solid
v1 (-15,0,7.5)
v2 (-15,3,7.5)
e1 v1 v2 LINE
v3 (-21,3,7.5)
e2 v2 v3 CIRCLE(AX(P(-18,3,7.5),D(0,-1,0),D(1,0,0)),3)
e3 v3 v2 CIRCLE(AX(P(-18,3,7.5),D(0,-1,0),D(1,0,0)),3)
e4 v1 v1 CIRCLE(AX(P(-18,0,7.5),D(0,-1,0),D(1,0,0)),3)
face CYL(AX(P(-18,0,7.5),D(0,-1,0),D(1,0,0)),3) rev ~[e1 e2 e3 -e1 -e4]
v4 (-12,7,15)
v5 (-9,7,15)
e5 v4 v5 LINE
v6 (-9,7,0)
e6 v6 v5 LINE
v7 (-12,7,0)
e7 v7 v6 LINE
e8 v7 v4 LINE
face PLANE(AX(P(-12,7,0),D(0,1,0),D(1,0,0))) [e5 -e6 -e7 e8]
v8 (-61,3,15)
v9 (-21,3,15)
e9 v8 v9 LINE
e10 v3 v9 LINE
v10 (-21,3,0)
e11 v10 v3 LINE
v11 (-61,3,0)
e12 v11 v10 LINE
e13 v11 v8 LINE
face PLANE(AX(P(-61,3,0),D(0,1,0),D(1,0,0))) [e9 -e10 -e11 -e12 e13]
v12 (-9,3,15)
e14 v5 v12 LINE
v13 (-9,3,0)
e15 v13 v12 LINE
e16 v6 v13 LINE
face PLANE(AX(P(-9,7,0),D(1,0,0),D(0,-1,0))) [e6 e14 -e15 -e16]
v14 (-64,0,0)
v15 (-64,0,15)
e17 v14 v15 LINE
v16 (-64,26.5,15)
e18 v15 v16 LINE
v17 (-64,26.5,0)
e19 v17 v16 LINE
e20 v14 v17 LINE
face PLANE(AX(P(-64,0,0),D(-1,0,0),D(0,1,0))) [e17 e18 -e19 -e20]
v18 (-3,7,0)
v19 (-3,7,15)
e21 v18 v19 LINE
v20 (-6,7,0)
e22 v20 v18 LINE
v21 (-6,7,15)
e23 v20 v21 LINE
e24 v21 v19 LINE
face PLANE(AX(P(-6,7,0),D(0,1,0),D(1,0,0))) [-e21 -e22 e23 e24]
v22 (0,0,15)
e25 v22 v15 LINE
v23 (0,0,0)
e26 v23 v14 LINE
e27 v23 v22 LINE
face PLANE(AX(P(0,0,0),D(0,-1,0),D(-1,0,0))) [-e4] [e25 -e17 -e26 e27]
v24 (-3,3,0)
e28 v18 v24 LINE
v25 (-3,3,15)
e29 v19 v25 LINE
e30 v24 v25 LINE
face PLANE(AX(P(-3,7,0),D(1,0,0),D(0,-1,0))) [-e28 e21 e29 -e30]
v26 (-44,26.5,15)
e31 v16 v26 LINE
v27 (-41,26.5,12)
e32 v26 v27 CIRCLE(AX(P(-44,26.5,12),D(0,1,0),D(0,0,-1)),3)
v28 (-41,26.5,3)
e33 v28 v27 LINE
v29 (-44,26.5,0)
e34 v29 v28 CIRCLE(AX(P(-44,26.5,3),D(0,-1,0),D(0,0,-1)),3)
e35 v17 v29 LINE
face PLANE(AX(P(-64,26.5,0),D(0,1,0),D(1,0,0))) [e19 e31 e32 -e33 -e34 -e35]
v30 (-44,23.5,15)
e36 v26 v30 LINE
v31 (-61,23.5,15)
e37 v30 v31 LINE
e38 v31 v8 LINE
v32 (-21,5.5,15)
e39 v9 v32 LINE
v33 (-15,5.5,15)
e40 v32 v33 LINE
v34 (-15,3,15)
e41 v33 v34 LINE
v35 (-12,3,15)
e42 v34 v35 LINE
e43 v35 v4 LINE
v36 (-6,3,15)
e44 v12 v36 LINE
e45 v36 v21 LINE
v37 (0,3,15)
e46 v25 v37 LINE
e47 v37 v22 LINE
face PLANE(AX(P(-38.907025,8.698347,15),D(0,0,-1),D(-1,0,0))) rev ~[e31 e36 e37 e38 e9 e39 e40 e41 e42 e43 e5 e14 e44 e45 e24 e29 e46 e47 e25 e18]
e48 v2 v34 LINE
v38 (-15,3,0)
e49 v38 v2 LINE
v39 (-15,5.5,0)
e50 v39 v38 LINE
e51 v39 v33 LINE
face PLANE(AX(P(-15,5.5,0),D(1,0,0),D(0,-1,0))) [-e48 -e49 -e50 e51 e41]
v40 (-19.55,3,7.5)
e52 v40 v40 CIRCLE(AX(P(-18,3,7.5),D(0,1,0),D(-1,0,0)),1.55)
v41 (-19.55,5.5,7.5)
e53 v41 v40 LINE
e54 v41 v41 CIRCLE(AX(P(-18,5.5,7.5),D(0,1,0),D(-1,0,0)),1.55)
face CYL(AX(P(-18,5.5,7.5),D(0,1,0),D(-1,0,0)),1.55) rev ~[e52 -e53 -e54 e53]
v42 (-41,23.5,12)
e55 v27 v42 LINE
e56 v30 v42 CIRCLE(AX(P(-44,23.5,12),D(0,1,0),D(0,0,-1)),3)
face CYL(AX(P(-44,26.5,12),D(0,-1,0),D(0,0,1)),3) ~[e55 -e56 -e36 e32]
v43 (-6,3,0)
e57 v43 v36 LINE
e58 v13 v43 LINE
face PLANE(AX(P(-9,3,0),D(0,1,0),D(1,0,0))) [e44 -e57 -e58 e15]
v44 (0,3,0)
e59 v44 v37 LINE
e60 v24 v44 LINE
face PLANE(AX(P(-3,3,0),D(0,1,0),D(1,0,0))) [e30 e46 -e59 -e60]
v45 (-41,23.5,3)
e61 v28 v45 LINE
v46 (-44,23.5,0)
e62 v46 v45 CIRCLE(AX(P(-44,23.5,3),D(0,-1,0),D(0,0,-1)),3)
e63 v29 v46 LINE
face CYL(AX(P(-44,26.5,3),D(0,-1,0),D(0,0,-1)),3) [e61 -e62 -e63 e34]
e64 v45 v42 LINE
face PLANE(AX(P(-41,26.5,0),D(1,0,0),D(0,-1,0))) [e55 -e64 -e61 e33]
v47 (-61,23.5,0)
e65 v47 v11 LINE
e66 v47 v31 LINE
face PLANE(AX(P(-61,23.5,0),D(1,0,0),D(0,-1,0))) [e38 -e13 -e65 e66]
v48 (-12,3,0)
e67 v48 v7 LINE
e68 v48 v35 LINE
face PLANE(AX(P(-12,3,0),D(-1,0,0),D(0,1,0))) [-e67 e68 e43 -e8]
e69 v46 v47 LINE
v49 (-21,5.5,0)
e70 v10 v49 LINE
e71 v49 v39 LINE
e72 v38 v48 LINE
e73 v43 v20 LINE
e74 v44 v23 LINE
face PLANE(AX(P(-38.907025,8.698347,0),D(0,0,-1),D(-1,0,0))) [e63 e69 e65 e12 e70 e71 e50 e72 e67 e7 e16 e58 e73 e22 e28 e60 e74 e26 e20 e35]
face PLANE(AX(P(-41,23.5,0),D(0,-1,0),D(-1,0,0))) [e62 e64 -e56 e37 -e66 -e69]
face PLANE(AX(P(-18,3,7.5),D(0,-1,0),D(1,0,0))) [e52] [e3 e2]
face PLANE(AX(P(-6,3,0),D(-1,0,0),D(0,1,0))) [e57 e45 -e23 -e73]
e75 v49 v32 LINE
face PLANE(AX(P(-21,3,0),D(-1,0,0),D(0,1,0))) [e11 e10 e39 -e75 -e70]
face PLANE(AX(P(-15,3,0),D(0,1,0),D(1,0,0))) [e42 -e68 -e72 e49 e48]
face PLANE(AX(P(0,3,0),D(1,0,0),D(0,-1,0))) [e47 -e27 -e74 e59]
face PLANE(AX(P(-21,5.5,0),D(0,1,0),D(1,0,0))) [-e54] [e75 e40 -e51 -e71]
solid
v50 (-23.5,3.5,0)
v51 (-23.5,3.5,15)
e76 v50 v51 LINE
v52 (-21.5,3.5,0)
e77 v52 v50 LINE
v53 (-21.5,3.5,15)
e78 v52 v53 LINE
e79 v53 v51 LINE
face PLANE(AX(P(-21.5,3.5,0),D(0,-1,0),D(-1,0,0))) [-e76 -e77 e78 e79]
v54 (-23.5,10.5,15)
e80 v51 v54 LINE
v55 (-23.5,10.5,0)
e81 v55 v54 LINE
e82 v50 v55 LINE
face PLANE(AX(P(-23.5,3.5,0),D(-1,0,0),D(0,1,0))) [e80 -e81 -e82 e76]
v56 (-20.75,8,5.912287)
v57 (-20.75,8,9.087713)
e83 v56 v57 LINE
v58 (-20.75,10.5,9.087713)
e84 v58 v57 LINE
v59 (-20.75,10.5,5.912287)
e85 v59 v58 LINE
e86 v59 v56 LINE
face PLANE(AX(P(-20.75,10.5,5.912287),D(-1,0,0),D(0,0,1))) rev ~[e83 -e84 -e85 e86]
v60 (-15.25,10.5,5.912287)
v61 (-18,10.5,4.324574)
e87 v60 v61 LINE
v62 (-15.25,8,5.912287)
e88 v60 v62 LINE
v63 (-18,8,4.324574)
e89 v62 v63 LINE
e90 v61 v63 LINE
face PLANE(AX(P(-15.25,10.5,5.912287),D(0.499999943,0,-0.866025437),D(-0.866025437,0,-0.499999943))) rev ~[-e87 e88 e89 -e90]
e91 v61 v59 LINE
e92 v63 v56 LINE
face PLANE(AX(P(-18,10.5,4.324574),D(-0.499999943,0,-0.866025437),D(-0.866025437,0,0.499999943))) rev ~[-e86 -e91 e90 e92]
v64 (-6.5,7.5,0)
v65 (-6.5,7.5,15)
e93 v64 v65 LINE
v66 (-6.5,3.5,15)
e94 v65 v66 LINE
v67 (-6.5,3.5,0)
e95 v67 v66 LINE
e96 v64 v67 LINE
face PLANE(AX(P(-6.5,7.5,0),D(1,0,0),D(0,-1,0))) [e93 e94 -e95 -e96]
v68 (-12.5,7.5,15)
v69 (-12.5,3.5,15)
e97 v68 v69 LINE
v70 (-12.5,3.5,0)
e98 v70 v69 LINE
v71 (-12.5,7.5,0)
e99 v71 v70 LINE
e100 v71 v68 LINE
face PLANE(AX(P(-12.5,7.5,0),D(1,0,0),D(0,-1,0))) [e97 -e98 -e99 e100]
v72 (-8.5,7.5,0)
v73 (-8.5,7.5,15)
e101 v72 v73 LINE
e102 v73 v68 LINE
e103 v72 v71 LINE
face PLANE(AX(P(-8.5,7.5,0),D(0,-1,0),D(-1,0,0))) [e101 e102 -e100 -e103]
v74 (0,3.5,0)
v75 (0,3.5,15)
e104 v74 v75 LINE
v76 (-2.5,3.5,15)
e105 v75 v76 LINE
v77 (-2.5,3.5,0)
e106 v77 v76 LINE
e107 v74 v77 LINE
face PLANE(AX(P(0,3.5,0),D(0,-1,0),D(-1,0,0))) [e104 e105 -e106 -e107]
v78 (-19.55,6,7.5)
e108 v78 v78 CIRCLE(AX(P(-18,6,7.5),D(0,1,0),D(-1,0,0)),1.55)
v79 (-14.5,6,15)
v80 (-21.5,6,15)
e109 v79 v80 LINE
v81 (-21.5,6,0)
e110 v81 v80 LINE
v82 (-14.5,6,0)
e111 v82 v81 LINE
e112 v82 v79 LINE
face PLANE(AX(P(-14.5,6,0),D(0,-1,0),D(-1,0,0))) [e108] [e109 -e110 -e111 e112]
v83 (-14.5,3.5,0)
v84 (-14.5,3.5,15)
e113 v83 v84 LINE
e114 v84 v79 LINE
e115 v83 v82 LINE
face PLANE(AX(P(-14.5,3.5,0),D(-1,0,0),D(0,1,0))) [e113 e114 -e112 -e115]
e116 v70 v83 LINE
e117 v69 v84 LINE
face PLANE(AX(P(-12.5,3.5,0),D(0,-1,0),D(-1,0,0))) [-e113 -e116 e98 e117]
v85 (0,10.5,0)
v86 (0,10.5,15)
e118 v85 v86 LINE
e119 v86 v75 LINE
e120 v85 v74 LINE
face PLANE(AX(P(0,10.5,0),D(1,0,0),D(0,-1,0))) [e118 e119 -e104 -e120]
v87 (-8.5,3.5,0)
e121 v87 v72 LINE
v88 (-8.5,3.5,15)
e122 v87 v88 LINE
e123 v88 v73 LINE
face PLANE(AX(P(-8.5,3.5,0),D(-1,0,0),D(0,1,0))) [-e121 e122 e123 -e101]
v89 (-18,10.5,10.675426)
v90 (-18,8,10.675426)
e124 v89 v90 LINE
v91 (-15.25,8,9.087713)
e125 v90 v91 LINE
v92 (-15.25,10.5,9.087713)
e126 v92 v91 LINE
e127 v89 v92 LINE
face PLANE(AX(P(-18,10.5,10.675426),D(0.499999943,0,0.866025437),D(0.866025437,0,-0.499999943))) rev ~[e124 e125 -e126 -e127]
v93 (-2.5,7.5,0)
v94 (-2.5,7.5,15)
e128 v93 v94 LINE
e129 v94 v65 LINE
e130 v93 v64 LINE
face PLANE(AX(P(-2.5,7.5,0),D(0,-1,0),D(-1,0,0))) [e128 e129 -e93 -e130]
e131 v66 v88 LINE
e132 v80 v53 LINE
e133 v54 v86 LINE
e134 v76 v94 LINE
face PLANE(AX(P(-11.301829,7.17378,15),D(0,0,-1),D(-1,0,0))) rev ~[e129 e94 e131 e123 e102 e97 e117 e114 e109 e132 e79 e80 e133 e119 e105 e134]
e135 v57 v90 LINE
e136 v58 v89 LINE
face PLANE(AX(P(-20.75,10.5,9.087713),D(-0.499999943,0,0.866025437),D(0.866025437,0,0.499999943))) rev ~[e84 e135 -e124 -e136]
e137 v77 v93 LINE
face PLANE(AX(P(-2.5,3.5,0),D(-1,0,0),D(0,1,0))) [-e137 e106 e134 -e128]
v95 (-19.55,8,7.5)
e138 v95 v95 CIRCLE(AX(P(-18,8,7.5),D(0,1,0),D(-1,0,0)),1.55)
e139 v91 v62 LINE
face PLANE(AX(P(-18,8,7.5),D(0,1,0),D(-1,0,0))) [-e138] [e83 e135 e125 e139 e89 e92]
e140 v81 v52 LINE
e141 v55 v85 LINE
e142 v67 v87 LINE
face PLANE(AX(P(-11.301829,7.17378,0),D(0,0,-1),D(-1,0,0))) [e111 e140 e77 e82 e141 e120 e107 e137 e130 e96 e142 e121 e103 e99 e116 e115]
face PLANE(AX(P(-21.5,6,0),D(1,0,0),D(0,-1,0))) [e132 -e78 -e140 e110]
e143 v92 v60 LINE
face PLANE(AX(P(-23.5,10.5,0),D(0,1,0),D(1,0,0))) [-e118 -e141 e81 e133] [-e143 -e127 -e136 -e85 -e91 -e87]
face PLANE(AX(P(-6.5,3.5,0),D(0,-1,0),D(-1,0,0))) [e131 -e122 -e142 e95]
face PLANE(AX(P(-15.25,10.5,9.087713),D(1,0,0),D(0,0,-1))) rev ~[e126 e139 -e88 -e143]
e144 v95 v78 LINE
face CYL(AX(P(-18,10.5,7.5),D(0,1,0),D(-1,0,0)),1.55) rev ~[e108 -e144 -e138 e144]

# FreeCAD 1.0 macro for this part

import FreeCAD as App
import Part
import Sketcher

V = App.Vector
Q = App.Units.Quantity


def edges_at(feature, points):
    """Names of the edges that pass closest to the given points."""
    edges = feature.Shape.Edges
    near = lambda p: min(range(len(edges)), key=lambda i: edges[i].distToShape(Part.Vertex(*p))[0])
    return sorted({f"Edge{near(p) + 1}" for p in points})

doc = App.newDocument("Part")
body = doc.addObject("PartDesign::Body", "Body")

sketch1 = doc.addObject("Sketcher::SketchObject", "Sketch")
body.addObject(sketch1)
sketch1.AttachmentSupport = (doc.XY_Plane, [""])
sketch1.MapMode = "FlatFace"
sketch1.addGeometry([
    Part.LineSegment(V(-64, 0, 0), V(0, 0, 0)),
    Part.LineSegment(V(0, 0, 0), V(0, 3, 0)),
    Part.LineSegment(V(0, 3, 0), V(-3, 3, 0)),
    Part.LineSegment(V(-3, 3, 0), V(-3, 7, 0)),
    Part.LineSegment(V(-3, 7, 0), V(-6, 7, 0)),
    Part.LineSegment(V(-6, 7, 0), V(-6, 3, 0)),
    Part.LineSegment(V(-6, 3, 0), V(-9, 3, 0)),
    Part.LineSegment(V(-9, 3, 0), V(-9, 7, 0)),
    Part.LineSegment(V(-9, 7, 0), V(-12, 7, 0)),
    Part.LineSegment(V(-12, 7, 0), V(-12, 3, 0)),
    Part.LineSegment(V(-12, 3, 0), V(-15, 3, 0)),
    Part.LineSegment(V(-15, 3, 0), V(-15, 5.5, 0)),
    Part.LineSegment(V(-15, 5.5, 0), V(-21, 5.5, 0)),
    Part.LineSegment(V(-21, 5.5, 0), V(-21, 3, 0)),
    Part.LineSegment(V(-21, 3, 0), V(-61, 3, 0)),
    Part.LineSegment(V(-61, 3, 0), V(-61, 23.5, 0)),
    Part.LineSegment(V(-61, 23.5, 0), V(-41, 23.5, 0)),
    Part.LineSegment(V(-41, 23.5, 0), V(-41, 26.5, 0)),
    Part.LineSegment(V(-41, 26.5, 0), V(-64, 26.5, 0)),
    Part.LineSegment(V(-64, 26.5, 0), V(-64, 0, 0)),
], False)
sketch1.addConstraint([
    Sketcher.Constraint("Coincident", 0, 2, 1, 1),
    Sketcher.Constraint("Coincident", 1, 2, 2, 1),
    Sketcher.Constraint("Coincident", 2, 2, 3, 1),
    Sketcher.Constraint("Coincident", 3, 2, 4, 1),
    Sketcher.Constraint("Coincident", 4, 2, 5, 1),
    Sketcher.Constraint("Coincident", 5, 2, 6, 1),
    Sketcher.Constraint("Coincident", 6, 2, 7, 1),
    Sketcher.Constraint("Coincident", 7, 2, 8, 1),
    Sketcher.Constraint("Coincident", 8, 2, 9, 1),
    Sketcher.Constraint("Coincident", 9, 2, 10, 1),
    Sketcher.Constraint("Coincident", 10, 2, 11, 1),
    Sketcher.Constraint("Coincident", 11, 2, 12, 1),
    Sketcher.Constraint("Coincident", 12, 2, 13, 1),
    Sketcher.Constraint("Coincident", 13, 2, 14, 1),
    Sketcher.Constraint("Coincident", 14, 2, 15, 1),
    Sketcher.Constraint("Coincident", 15, 2, 16, 1),
    Sketcher.Constraint("Coincident", 16, 2, 17, 1),
    Sketcher.Constraint("Coincident", 17, 2, 18, 1),
    Sketcher.Constraint("Coincident", 18, 2, 19, 1),
    Sketcher.Constraint("Coincident", 19, 2, 0, 1),
    Sketcher.Constraint("Horizontal", 0),
    Sketcher.Constraint("Vertical", 1),
    Sketcher.Constraint("Horizontal", 2),
    Sketcher.Constraint("Vertical", 3),
    Sketcher.Constraint("Horizontal", 4),
    Sketcher.Constraint("Vertical", 5),
    Sketcher.Constraint("Horizontal", 6),
    Sketcher.Constraint("Vertical", 7),
    Sketcher.Constraint("Horizontal", 8),
    Sketcher.Constraint("Vertical", 9),
    Sketcher.Constraint("Horizontal", 10),
    Sketcher.Constraint("Vertical", 11),
    Sketcher.Constraint("Horizontal", 12),
    Sketcher.Constraint("Vertical", 13),
    Sketcher.Constraint("Horizontal", 14),
    Sketcher.Constraint("Vertical", 15),
    Sketcher.Constraint("Horizontal", 16),
    Sketcher.Constraint("Vertical", 17),
    Sketcher.Constraint("Horizontal", 18),
    Sketcher.Constraint("Vertical", 19),
    Sketcher.Constraint("Coincident", 0, 2, -1, 1),
    Sketcher.Constraint("Horizontal", 2, 2, 5, 2),
    Sketcher.Constraint("Horizontal", 4, 2, 7, 2),
    Sketcher.Constraint("Horizontal", 6, 2, 9, 2),
    Sketcher.Constraint("Horizontal", 10, 2, 13, 2),
    Sketcher.Constraint("Equal", 2, 4),
    Sketcher.Constraint("Equal", 4, 6),
    Sketcher.Constraint("Equal", 6, 8),
    Sketcher.Constraint("Equal", 8, 10),
    Sketcher.Constraint("Equal", 10, 1),
    Sketcher.Constraint("Equal", 1, 17),
    Sketcher.Constraint("DistanceX", 0, 1, 0, 2, 64.0),
    Sketcher.Constraint("DistanceX", 2, 2, 2, 1, 3.0),
    Sketcher.Constraint("DistanceX", 12, 2, 12, 1, 6.0),
    Sketcher.Constraint("DistanceX", 14, 2, 14, 1, 40.0),
    Sketcher.Constraint("DistanceX", 16, 1, 16, 2, 20.0),
    Sketcher.Constraint("DistanceY", 3, 1, 3, 2, 4.0),
    Sketcher.Constraint("DistanceY", 11, 1, 11, 2, 2.5),
    Sketcher.Constraint("DistanceY", 15, 1, 15, 2, 20.5),
])
pad1 = doc.addObject("PartDesign::Pad", "Pad")
body.addObject(pad1)
pad1.Profile = sketch1
pad1.Length = 15

sketch2 = doc.addObject("Sketcher::SketchObject", "Sketch001")
body.addObject(sketch2)
sketch2.AttachmentSupport = (doc.XZ_Plane, [""])
sketch2.MapMode = "FlatFace"
sketch2.AttachmentOffset = App.Placement(V(0, 0, -5.5), App.Rotation())
sketch2.addGeometry(Part.Circle(V(-18, 7.5, 0), V(0, 0, 1), 1.6), False)
sketch2.addConstraint([
    Sketcher.Constraint("Diameter", 0, 3.1),
    Sketcher.Constraint("DistanceX", 0, 3, -1, 1, 18.0),
    Sketcher.Constraint("DistanceY", -1, 1, 0, 3, 7.5),
])
pocket1 = doc.addObject("PartDesign::Pocket", "Pocket")
body.addObject(pocket1)
pocket1.Profile = sketch2
pocket1.Type = "ThroughAll"
pocket1.Reversed = True

sketch3 = doc.addObject("Sketcher::SketchObject", "Sketch002")
body.addObject(sketch3)
sketch3.AttachmentSupport = (doc.XZ_Plane, [""])
sketch3.MapMode = "FlatFace"
sketch3.addGeometry(Part.Circle(V(-18, 7.5, 0), V(0, 0, 1), 3), False)
sketch3.addConstraint([
    Sketcher.Constraint("Diameter", 0, 6.0),
    Sketcher.Constraint("DistanceX", 0, 3, -1, 1, 18.0),
    Sketcher.Constraint("DistanceY", -1, 1, 0, 3, 7.5),
])
pocket2 = doc.addObject("PartDesign::Pocket", "Pocket001")
body.addObject(pocket2)
pocket2.Profile = sketch3
pocket2.Length = 3
doc.recompute()

fillet = doc.addObject("PartDesign::Fillet", "Fillet")
body.addObject(fillet)
fillet.Base = (pocket2, edges_at(pocket2, [(-41, 25, 0), (-41, 25, 15)]))
fillet.Radius = 3
body2 = doc.addObject("PartDesign::Body", "Body001")

sketch4 = doc.addObject("Sketcher::SketchObject", "Sketch003")
body2.addObject(sketch4)
sketch4.AttachmentSupport = (doc.getObject("XY_Plane001"), [""])
sketch4.MapMode = "FlatFace"
sketch4.addGeometry([
    Part.LineSegment(V(-2.5, 3.5, 0), V(0, 3.5, 0)),
    Part.LineSegment(V(0, 3.5, 0), V(0, 10.5, 0)),
    Part.LineSegment(V(0, 10.5, 0), V(-23.5, 10.5, 0)),
    Part.LineSegment(V(-23.5, 10.5, 0), V(-23.5, 3.5, 0)),
    Part.LineSegment(V(-23.5, 3.5, 0), V(-21.5, 3.5, 0)),
    Part.LineSegment(V(-21.5, 3.5, 0), V(-21.5, 6, 0)),
    Part.LineSegment(V(-21.5, 6, 0), V(-14.5, 6, 0)),
    Part.LineSegment(V(-14.5, 6, 0), V(-14.5, 3.5, 0)),
    Part.LineSegment(V(-14.5, 3.5, 0), V(-12.5, 3.5, 0)),
    Part.LineSegment(V(-12.5, 3.5, 0), V(-12.5, 7.5, 0)),
    Part.LineSegment(V(-12.5, 7.5, 0), V(-8.5, 7.5, 0)),
    Part.LineSegment(V(-8.5, 7.5, 0), V(-8.5, 3.5, 0)),
    Part.LineSegment(V(-8.5, 3.5, 0), V(-6.5, 3.5, 0)),
    Part.LineSegment(V(-6.5, 3.5, 0), V(-6.5, 7.5, 0)),
    Part.LineSegment(V(-6.5, 7.5, 0), V(-2.5, 7.5, 0)),
    Part.LineSegment(V(-2.5, 7.5, 0), V(-2.5, 3.5, 0)),
], False)
sketch4.addConstraint([
    Sketcher.Constraint("Coincident", 0, 2, 1, 1),
    Sketcher.Constraint("Coincident", 1, 2, 2, 1),
    Sketcher.Constraint("Coincident", 2, 2, 3, 1),
    Sketcher.Constraint("Coincident", 3, 2, 4, 1),
    Sketcher.Constraint("Coincident", 4, 2, 5, 1),
    Sketcher.Constraint("Coincident", 5, 2, 6, 1),
    Sketcher.Constraint("Coincident", 6, 2, 7, 1),
    Sketcher.Constraint("Coincident", 7, 2, 8, 1),
    Sketcher.Constraint("Coincident", 8, 2, 9, 1),
    Sketcher.Constraint("Coincident", 9, 2, 10, 1),
    Sketcher.Constraint("Coincident", 10, 2, 11, 1),
    Sketcher.Constraint("Coincident", 11, 2, 12, 1),
    Sketcher.Constraint("Coincident", 12, 2, 13, 1),
    Sketcher.Constraint("Coincident", 13, 2, 14, 1),
    Sketcher.Constraint("Coincident", 14, 2, 15, 1),
    Sketcher.Constraint("Coincident", 15, 2, 0, 1),
    Sketcher.Constraint("Horizontal", 0),
    Sketcher.Constraint("Vertical", 1),
    Sketcher.Constraint("Horizontal", 2),
    Sketcher.Constraint("Vertical", 3),
    Sketcher.Constraint("Horizontal", 4),
    Sketcher.Constraint("Vertical", 5),
    Sketcher.Constraint("Horizontal", 6),
    Sketcher.Constraint("Vertical", 7),
    Sketcher.Constraint("Horizontal", 8),
    Sketcher.Constraint("Vertical", 9),
    Sketcher.Constraint("Horizontal", 10),
    Sketcher.Constraint("Vertical", 11),
    Sketcher.Constraint("Horizontal", 12),
    Sketcher.Constraint("Vertical", 13),
    Sketcher.Constraint("Horizontal", 14),
    Sketcher.Constraint("Vertical", 15),
    Sketcher.Constraint("PointOnObject", 0, 2, -2),
    Sketcher.Constraint("Horizontal", 0, 2, 3, 2),
    Sketcher.Constraint("Horizontal", 4, 2, 7, 2),
    Sketcher.Constraint("Horizontal", 8, 2, 11, 2),
    Sketcher.Constraint("Horizontal", 10, 2, 13, 2),
    Sketcher.Constraint("Equal", 4, 8),
    Sketcher.Constraint("Equal", 8, 12),
    Sketcher.Constraint("Equal", 10, 14),
    Sketcher.Constraint("Equal", 6, 1),
    Sketcher.Constraint("Equal", 0, 5),
    Sketcher.Constraint("Equal", 14, 9),
    Sketcher.Constraint("DistanceX", 4, 1, 4, 2, 2.0),
    Sketcher.Constraint("DistanceX", 6, 1, 6, 2, 7.0),
    Sketcher.Constraint("DistanceX", 10, 1, 10, 2, 4.0),
    Sketcher.Constraint("DistanceX", 0, 1, 0, 2, 2.5),
    Sketcher.Constraint("DistanceY", -1, 1, 5, 2, 6.0),
])
pad2 = doc.addObject("PartDesign::Pad", "Pad001")
body2.addObject(pad2)
pad2.Profile = sketch4
pad2.Length = 15

sketch5 = doc.addObject("Sketcher::SketchObject", "Sketch004")
body2.addObject(sketch5)
sketch5.AttachmentSupport = (doc.getObject("XZ_Plane001"), [""])
sketch5.MapMode = "FlatFace"
sketch5.AttachmentOffset = App.Placement(V(0, 0, -10.5), App.Rotation())
sketch5.addGeometry(Part.Circle(V(-18, 7.5, 0), V(0, 0, 1), 1.6), False)
sketch5.addConstraint([
    Sketcher.Constraint("Diameter", 0, 3.1),
    Sketcher.Constraint("DistanceX", 0, 3, -1, 1, 18.0),
    Sketcher.Constraint("DistanceY", -1, 1, 0, 3, 7.5),
])
pocket3 = doc.addObject("PartDesign::Pocket", "Pocket002")
body2.addObject(pocket3)
pocket3.Profile = sketch5
pocket3.Length = 5
pocket3.Reversed = True

sketch6 = doc.addObject("Sketcher::SketchObject", "Sketch005")
body2.addObject(sketch6)
sketch6.AttachmentSupport = (doc.getObject("XZ_Plane001"), [""])
sketch6.MapMode = "FlatFace"
sketch6.AttachmentOffset = App.Placement(V(0, 0, -10.5), App.Rotation())
sketch6.addGeometry([
    Part.LineSegment(V(-20.8, 5.9, 0), V(-20.8, 9.1, 0)),
    Part.LineSegment(V(-20.8, 9.1, 0), V(-18, 10.7, 0)),
    Part.LineSegment(V(-18, 10.7, 0), V(-15.2, 9.1, 0)),
    Part.LineSegment(V(-15.2, 9.1, 0), V(-15.2, 5.9, 0)),
    Part.LineSegment(V(-15.2, 5.9, 0), V(-18, 4.3, 0)),
    Part.LineSegment(V(-18, 4.3, 0), V(-20.8, 5.9, 0)),
], False)
sketch6.addConstraint([
    Sketcher.Constraint("Coincident", 0, 2, 1, 1),
    Sketcher.Constraint("Coincident", 1, 2, 2, 1),
    Sketcher.Constraint("Coincident", 2, 2, 3, 1),
    Sketcher.Constraint("Coincident", 3, 2, 4, 1),
    Sketcher.Constraint("Coincident", 4, 2, 5, 1),
    Sketcher.Constraint("Coincident", 5, 2, 0, 1),
    Sketcher.Constraint("Vertical", 0),
    Sketcher.Constraint("Vertical", 3),
    Sketcher.Constraint("Parallel", 1, 4),
    Sketcher.Constraint("Parallel", 2, 5),
    Sketcher.Constraint("Horizontal", 0, 2, 2, 2),
    Sketcher.Constraint("Horizontal", 3, 2, 5, 2),
    Sketcher.Constraint("Vertical", 1, 2, 4, 2),
    Sketcher.Constraint("Angle", 1, Q("29.999996 deg")),
    Sketcher.Constraint("DistanceX", 1, 2, -1, 1, 18.0),
    Sketcher.Constraint("DistanceX", 0, 2, 2, 2, 5.5),
    Sketcher.Constraint("DistanceY", 0, 1, 0, 2, 3.175426),
    Sketcher.Constraint("DistanceY", -1, 1, 0, 2, 9.087713),
])
pocket4 = doc.addObject("PartDesign::Pocket", "Pocket003")
body2.addObject(pocket4)
pocket4.Profile = sketch6
pocket4.Length = 2.5
pocket4.Reversed = True

doc.recompute()
